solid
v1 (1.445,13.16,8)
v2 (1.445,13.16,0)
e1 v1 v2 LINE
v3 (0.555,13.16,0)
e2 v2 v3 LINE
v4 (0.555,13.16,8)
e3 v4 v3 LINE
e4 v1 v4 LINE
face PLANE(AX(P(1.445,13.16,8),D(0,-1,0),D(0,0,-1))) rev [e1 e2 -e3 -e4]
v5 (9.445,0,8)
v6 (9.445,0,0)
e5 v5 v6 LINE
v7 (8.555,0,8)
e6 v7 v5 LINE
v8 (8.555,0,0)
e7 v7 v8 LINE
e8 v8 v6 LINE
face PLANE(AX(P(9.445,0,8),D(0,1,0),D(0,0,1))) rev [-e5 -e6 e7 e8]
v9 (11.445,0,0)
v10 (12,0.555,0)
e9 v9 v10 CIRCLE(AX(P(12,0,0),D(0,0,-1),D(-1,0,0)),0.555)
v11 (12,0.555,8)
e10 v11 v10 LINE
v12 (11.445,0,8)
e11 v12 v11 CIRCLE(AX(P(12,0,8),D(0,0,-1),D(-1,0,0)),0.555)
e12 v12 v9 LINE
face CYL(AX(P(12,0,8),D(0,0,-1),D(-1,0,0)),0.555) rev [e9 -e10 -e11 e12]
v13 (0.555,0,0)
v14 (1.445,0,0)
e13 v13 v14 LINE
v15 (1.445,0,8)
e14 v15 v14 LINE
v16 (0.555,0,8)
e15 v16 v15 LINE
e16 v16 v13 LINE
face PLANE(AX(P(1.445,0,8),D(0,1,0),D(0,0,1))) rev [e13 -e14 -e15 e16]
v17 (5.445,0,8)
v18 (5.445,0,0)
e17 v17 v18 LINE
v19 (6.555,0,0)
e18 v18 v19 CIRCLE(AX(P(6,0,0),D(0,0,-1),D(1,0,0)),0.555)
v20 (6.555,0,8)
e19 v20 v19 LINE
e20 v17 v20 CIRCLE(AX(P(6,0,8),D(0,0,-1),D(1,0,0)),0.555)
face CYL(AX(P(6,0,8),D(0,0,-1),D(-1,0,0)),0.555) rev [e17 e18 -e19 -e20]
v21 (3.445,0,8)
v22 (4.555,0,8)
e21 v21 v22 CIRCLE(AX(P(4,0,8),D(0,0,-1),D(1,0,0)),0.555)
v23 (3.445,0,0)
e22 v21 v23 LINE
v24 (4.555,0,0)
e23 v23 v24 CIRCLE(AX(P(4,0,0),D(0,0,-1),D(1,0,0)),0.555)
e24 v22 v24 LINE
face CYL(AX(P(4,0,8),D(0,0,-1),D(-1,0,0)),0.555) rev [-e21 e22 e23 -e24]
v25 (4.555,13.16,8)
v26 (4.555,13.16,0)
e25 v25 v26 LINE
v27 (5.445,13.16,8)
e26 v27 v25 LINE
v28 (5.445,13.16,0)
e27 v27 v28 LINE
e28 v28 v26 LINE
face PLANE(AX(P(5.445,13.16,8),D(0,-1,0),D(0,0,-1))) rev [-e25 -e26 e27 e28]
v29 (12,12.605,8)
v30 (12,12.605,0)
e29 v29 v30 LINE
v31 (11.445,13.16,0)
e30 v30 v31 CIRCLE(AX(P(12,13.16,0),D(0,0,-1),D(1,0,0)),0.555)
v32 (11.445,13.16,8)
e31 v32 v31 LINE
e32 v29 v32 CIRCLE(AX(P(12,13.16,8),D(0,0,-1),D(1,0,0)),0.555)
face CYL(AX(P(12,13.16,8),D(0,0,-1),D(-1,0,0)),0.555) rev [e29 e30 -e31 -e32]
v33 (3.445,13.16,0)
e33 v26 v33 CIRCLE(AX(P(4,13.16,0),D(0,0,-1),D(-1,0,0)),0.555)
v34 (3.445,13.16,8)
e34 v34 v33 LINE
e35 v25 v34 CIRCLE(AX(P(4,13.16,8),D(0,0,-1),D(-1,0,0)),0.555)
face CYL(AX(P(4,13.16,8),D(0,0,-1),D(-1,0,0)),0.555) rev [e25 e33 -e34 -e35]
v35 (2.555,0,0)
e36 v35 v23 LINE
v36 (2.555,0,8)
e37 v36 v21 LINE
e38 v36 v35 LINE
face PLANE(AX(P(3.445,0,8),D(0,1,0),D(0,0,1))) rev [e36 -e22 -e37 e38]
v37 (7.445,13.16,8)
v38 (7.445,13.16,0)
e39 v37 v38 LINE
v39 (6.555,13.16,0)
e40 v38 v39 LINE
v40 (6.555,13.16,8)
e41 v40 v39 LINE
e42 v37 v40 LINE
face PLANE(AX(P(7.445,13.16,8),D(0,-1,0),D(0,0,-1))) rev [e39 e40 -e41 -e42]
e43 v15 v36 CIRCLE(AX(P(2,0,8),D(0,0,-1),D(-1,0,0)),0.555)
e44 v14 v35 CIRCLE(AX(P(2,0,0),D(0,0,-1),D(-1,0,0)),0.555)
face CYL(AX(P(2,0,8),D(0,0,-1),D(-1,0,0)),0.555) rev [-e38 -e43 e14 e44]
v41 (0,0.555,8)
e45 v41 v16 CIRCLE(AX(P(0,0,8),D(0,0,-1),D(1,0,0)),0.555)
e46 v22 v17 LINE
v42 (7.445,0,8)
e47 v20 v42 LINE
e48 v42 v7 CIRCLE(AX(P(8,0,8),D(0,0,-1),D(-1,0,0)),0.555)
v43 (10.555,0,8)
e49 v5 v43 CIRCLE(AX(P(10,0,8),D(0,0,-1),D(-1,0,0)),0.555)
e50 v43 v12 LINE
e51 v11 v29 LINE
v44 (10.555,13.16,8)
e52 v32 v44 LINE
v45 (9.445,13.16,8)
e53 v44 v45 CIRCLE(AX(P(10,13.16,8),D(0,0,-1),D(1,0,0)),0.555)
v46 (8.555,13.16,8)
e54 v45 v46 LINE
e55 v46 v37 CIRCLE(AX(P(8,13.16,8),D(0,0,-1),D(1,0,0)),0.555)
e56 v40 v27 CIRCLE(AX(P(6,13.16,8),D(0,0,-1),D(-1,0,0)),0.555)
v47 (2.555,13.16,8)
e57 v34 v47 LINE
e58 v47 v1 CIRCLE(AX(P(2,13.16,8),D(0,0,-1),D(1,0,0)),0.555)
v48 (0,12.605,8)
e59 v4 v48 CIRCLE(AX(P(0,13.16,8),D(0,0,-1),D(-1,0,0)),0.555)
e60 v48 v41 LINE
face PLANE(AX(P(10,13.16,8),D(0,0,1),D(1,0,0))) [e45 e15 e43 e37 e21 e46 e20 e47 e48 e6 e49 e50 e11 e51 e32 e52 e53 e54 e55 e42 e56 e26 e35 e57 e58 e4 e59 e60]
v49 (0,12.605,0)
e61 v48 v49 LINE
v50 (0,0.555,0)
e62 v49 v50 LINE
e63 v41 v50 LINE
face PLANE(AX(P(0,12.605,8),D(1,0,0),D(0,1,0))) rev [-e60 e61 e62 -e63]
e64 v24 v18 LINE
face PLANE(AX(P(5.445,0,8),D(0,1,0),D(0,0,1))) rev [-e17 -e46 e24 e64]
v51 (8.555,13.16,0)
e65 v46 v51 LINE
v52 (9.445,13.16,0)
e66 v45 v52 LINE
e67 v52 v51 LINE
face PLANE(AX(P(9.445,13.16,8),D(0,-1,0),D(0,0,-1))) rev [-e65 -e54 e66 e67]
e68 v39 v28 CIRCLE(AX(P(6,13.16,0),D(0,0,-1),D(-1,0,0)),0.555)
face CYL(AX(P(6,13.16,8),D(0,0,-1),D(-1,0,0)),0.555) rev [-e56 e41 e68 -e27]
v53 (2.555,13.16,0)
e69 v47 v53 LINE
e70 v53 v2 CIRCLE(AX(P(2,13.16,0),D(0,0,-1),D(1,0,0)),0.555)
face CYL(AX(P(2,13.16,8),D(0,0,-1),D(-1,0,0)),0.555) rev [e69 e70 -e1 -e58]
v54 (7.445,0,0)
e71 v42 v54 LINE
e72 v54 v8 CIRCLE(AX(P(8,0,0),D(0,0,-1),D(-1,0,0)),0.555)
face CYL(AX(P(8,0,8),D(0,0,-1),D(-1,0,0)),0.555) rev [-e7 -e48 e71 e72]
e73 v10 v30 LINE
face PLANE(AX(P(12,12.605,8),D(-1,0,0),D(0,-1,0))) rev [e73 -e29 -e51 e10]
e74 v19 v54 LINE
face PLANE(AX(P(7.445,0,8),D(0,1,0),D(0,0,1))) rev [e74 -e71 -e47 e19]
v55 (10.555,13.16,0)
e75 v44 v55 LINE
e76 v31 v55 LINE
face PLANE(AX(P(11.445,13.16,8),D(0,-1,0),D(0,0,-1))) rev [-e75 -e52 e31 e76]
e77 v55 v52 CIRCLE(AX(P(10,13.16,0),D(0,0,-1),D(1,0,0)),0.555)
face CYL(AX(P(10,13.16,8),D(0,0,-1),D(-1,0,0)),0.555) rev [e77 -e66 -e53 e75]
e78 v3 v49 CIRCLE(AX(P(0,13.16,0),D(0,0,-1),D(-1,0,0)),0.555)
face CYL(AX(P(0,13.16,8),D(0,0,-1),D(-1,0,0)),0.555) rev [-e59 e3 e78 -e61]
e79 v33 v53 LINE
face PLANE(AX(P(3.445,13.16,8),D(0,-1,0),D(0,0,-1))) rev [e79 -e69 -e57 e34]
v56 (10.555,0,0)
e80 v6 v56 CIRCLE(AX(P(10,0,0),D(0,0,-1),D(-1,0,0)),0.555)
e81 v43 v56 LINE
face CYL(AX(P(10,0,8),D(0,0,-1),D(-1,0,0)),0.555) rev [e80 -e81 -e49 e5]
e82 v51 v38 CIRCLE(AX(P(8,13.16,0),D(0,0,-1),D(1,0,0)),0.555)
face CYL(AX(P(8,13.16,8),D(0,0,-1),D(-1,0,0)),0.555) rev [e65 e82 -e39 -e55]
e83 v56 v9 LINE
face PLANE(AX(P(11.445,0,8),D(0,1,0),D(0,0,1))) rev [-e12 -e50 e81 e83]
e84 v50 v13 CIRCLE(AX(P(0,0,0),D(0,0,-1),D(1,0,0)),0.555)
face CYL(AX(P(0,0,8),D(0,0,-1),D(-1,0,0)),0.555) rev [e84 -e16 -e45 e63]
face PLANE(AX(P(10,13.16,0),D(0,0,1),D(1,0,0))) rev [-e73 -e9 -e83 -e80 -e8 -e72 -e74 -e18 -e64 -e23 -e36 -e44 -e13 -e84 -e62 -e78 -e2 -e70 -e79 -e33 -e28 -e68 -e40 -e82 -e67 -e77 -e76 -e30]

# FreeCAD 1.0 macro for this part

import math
import FreeCAD as App
import Part
import Sketcher

doc = App.newDocument("Part")
body = doc.addObject("PartDesign::Body", "Body")

# Sketch on XY plane
sketch1 = body.newObject("Sketcher::SketchObject", "Sketch")
sketch1.AttachmentSupport = (doc.getObject("XY_Plane"), [""])
sketch1.MapMode = "FlatFace"
sketch1.addGeometry(Part.LineSegment(App.Vector(11.445, 13.16, 0), App.Vector(10.555, 13.16, 0)), False)
sketch1.addGeometry(Part.ArcOfCircle(Part.Circle(App.Vector(10, 13.16, 0), App.Vector(0, 0, 1), 0.555), math.radians(180), math.radians(360)), False)
sketch1.addGeometry(Part.LineSegment(App.Vector(9.445, 13.16, 0), App.Vector(8.555, 13.16, 0)), False)
sketch1.addGeometry(Part.ArcOfCircle(Part.Circle(App.Vector(8, 13.16, 0), App.Vector(0, 0, 1), 0.555), math.radians(180), math.radians(360)), False)
sketch1.addGeometry(Part.LineSegment(App.Vector(7.445, 13.16, 0), App.Vector(6.555, 13.16, 0)), False)
sketch1.addGeometry(Part.ArcOfCircle(Part.Circle(App.Vector(6, 13.16, 0), App.Vector(0, 0, 1), 0.555), math.radians(180), math.radians(360)), False)
sketch1.addGeometry(Part.LineSegment(App.Vector(5.445, 13.16, 0), App.Vector(4.555, 13.16, 0)), False)
sketch1.addGeometry(Part.ArcOfCircle(Part.Circle(App.Vector(4, 13.16, 0), App.Vector(0, 0, 1), 0.555), math.radians(180), math.radians(360)), False)
sketch1.addGeometry(Part.LineSegment(App.Vector(3.445, 13.16, 0), App.Vector(2.555, 13.16, 0)), False)
sketch1.addGeometry(Part.ArcOfCircle(Part.Circle(App.Vector(2, 13.16, 0), App.Vector(0, 0, 1), 0.555), math.radians(180), math.radians(360)), False)
sketch1.addGeometry(Part.LineSegment(App.Vector(1.445, 13.16, 0), App.Vector(0.555, 13.16, 0)), False)
sketch1.addGeometry(Part.ArcOfCircle(Part.Circle(App.Vector(0, 13.16, 0), App.Vector(0, 0, 1), 0.555), math.radians(-90), math.radians(0)), False)
sketch1.addGeometry(Part.LineSegment(App.Vector(0, 12.605, 0), App.Vector(0, 0.555, 0)), False)
sketch1.addGeometry(Part.ArcOfCircle(Part.Circle(App.Vector(0, 0, 0), App.Vector(0, 0, 1), 0.555), math.radians(0), math.radians(90)), False)
sketch1.addGeometry(Part.LineSegment(App.Vector(0.555, 0, 0), App.Vector(1.445, 0, 0)), False)
sketch1.addGeometry(Part.ArcOfCircle(Part.Circle(App.Vector(2, 0, 0), App.Vector(0, 0, 1), 0.555), math.radians(0), math.radians(180)), False)
sketch1.addGeometry(Part.LineSegment(App.Vector(2.555, 0, 0), App.Vector(3.445, 0, 0)), False)
sketch1.addGeometry(Part.ArcOfCircle(Part.Circle(App.Vector(4, 0, 0), App.Vector(0, 0, 1), 0.555), math.radians(0), math.radians(180)), False)
sketch1.addGeometry(Part.LineSegment(App.Vector(4.555, 0, 0), App.Vector(5.445, 0, 0)), False)
sketch1.addGeometry(Part.ArcOfCircle(Part.Circle(App.Vector(6, 0, 0), App.Vector(0, 0, 1), 0.555), math.radians(0), math.radians(180)), False)
sketch1.addGeometry(Part.LineSegment(App.Vector(6.555, 0, 0), App.Vector(7.445, 0, 0)), False)
sketch1.addGeometry(Part.ArcOfCircle(Part.Circle(App.Vector(8, 0, 0), App.Vector(0, 0, 1), 0.555), math.radians(0), math.radians(180)), False)
sketch1.addGeometry(Part.LineSegment(App.Vector(8.555, 0, 0), App.Vector(9.445, 0, 0)), False)
sketch1.addGeometry(Part.ArcOfCircle(Part.Circle(App.Vector(10, 0, 0), App.Vector(0, 0, 1), 0.555), math.radians(0), math.radians(180)), False)
sketch1.addGeometry(Part.LineSegment(App.Vector(10.555, 0, 0), App.Vector(11.445, 0, 0)), False)
sketch1.addGeometry(Part.ArcOfCircle(Part.Circle(App.Vector(12, 0, 0), App.Vector(0, 0, 1), 0.555), math.radians(90), math.radians(180)), False)
sketch1.addGeometry(Part.LineSegment(App.Vector(12, 0.555, 0), App.Vector(12, 12.605, 0)), False)
sketch1.addGeometry(Part.ArcOfCircle(Part.Circle(App.Vector(12, 13.16, 0), App.Vector(0, 0, 1), 0.555), math.radians(180), math.radians(270)), False)
sketch1.addConstraint(Sketcher.Constraint("Coincident", 0, 2, 1, 2))
sketch1.addConstraint(Sketcher.Constraint("Coincident", 1, 1, 2, 1))
sketch1.addConstraint(Sketcher.Constraint("Coincident", 2, 2, 3, 2))
sketch1.addConstraint(Sketcher.Constraint("Coincident", 3, 1, 4, 1))
sketch1.addConstraint(Sketcher.Constraint("Coincident", 4, 2, 5, 2))
sketch1.addConstraint(Sketcher.Constraint("Coincident", 5, 1, 6, 1))
sketch1.addConstraint(Sketcher.Constraint("Coincident", 6, 2, 7, 2))
sketch1.addConstraint(Sketcher.Constraint("Coincident", 7, 1, 8, 1))
sketch1.addConstraint(Sketcher.Constraint("Coincident", 8, 2, 9, 2))
sketch1.addConstraint(Sketcher.Constraint("Coincident", 9, 1, 10, 1))
sketch1.addConstraint(Sketcher.Constraint("Coincident", 10, 2, 11, 2))
sketch1.addConstraint(Sketcher.Constraint("Coincident", 11, 1, 12, 1))
sketch1.addConstraint(Sketcher.Constraint("Coincident", 12, 2, 13, 2))
sketch1.addConstraint(Sketcher.Constraint("Coincident", 13, 1, 14, 1))
sketch1.addConstraint(Sketcher.Constraint("Coincident", 14, 2, 15, 2))
sketch1.addConstraint(Sketcher.Constraint("Coincident", 15, 1, 16, 1))
sketch1.addConstraint(Sketcher.Constraint("Coincident", 16, 2, 17, 2))
sketch1.addConstraint(Sketcher.Constraint("Coincident", 17, 1, 18, 1))
sketch1.addConstraint(Sketcher.Constraint("Coincident", 18, 2, 19, 2))
sketch1.addConstraint(Sketcher.Constraint("Coincident", 19, 1, 20, 1))
sketch1.addConstraint(Sketcher.Constraint("Coincident", 20, 2, 21, 2))
sketch1.addConstraint(Sketcher.Constraint("Coincident", 21, 1, 22, 1))
sketch1.addConstraint(Sketcher.Constraint("Coincident", 22, 2, 23, 2))
sketch1.addConstraint(Sketcher.Constraint("Coincident", 23, 1, 24, 1))
sketch1.addConstraint(Sketcher.Constraint("Coincident", 24, 2, 25, 2))
sketch1.addConstraint(Sketcher.Constraint("Coincident", 25, 1, 26, 1))
sketch1.addConstraint(Sketcher.Constraint("Coincident", 26, 2, 27, 2))
sketch1.addConstraint(Sketcher.Constraint("Coincident", 27, 1, 0, 1))
sketch1.addConstraint(Sketcher.Constraint("Horizontal", 0))
sketch1.addConstraint(Sketcher.Constraint("Horizontal", 2))
sketch1.addConstraint(Sketcher.Constraint("Horizontal", 4))
sketch1.addConstraint(Sketcher.Constraint("Horizontal", 6))
sketch1.addConstraint(Sketcher.Constraint("Horizontal", 8))
sketch1.addConstraint(Sketcher.Constraint("Horizontal", 10))
sketch1.addConstraint(Sketcher.Constraint("Vertical", 12))
sketch1.addConstraint(Sketcher.Constraint("Horizontal", 14))
sketch1.addConstraint(Sketcher.Constraint("Horizontal", 16))
sketch1.addConstraint(Sketcher.Constraint("Horizontal", 18))
sketch1.addConstraint(Sketcher.Constraint("Horizontal", 20))
sketch1.addConstraint(Sketcher.Constraint("Horizontal", 22))
sketch1.addConstraint(Sketcher.Constraint("Horizontal", 24))
sketch1.addConstraint(Sketcher.Constraint("Vertical", 26))
sketch1.addConstraint(Sketcher.Constraint("Coincident", 13, 3, -1, 1))
sketch1.addConstraint(Sketcher.Constraint("Equal", 1, 3))
sketch1.addConstraint(Sketcher.Constraint("Equal", 3, 5))
sketch1.addConstraint(Sketcher.Constraint("Equal", 5, 7))
sketch1.addConstraint(Sketcher.Constraint("Equal", 7, 9))
sketch1.addConstraint(Sketcher.Constraint("Equal", 9, 11))
sketch1.addConstraint(Sketcher.Constraint("Equal", 11, 13))
sketch1.addConstraint(Sketcher.Constraint("Equal", 13, 15))
sketch1.addConstraint(Sketcher.Constraint("Equal", 15, 17))
sketch1.addConstraint(Sketcher.Constraint("Equal", 17, 19))
sketch1.addConstraint(Sketcher.Constraint("Equal", 19, 21))
sketch1.addConstraint(Sketcher.Constraint("Equal", 21, 23))
sketch1.addConstraint(Sketcher.Constraint("Equal", 23, 25))
sketch1.addConstraint(Sketcher.Constraint("Equal", 25, 27))
sketch1.addConstraint(Sketcher.Constraint("PointOnObject", 11, 3, -2))
sketch1.addConstraint(Sketcher.Constraint("PointOnObject", 15, 3, -1))
sketch1.addConstraint(Sketcher.Constraint("PointOnObject", 17, 3, -1))
sketch1.addConstraint(Sketcher.Constraint("PointOnObject", 19, 3, -1))
sketch1.addConstraint(Sketcher.Constraint("PointOnObject", 21, 3, -1))
sketch1.addConstraint(Sketcher.Constraint("PointOnObject", 23, 3, -1))
sketch1.addConstraint(Sketcher.Constraint("PointOnObject", 25, 3, -1))
sketch1.addConstraint(Sketcher.Constraint("PointOnObject", 11, 1, -2))
sketch1.addConstraint(Sketcher.Constraint("PointOnObject", 13, 1, -1))
sketch1.addConstraint(Sketcher.Constraint("PointOnObject", 15, 1, -1))
sketch1.addConstraint(Sketcher.Constraint("PointOnObject", 17, 1, -1))
sketch1.addConstraint(Sketcher.Constraint("PointOnObject", 19, 1, -1))
sketch1.addConstraint(Sketcher.Constraint("PointOnObject", 21, 1, -1))
sketch1.addConstraint(Sketcher.Constraint("PointOnObject", 23, 1, -1))
sketch1.addConstraint(Sketcher.Constraint("Horizontal", 1, 3, 3, 3))
sketch1.addConstraint(Sketcher.Constraint("Horizontal", 3, 3, 5, 3))
sketch1.addConstraint(Sketcher.Constraint("Horizontal", 5, 3, 7, 3))
sketch1.addConstraint(Sketcher.Constraint("Horizontal", 7, 3, 9, 3))
sketch1.addConstraint(Sketcher.Constraint("Horizontal", 9, 3, 11, 3))
sketch1.addConstraint(Sketcher.Constraint("Horizontal", 11, 3, 27, 3))
sketch1.addConstraint(Sketcher.Constraint("Horizontal", 27, 3, 0, 2))
sketch1.addConstraint(Sketcher.Constraint("Horizontal", 0, 2, 1, 1))
sketch1.addConstraint(Sketcher.Constraint("Horizontal", 2, 2, 3, 1))
sketch1.addConstraint(Sketcher.Constraint("Horizontal", 4, 2, 5, 1))
sketch1.addConstraint(Sketcher.Constraint("Horizontal", 6, 2, 7, 1))
sketch1.addConstraint(Sketcher.Constraint("Horizontal", 8, 2, 9, 1))
sketch1.addConstraint(Sketcher.Constraint("Vertical", 9, 3, 15, 3))
sketch1.addConstraint(Sketcher.Constraint("Vertical", 7, 3, 17, 3))
sketch1.addConstraint(Sketcher.Constraint("Vertical", 5, 3, 19, 3))
sketch1.addConstraint(Sketcher.Constraint("Vertical", 3, 3, 21, 3))
sketch1.addConstraint(Sketcher.Constraint("Vertical", 1, 3, 23, 3))
sketch1.addConstraint(Sketcher.Constraint("Vertical", 25, 3, 27, 3))
sketch1.addConstraint(Sketcher.Constraint("Vertical", 27, 3, 25, 1))
sketch1.addConstraint(Sketcher.Constraint("Equal", 0, 2))
sketch1.addConstraint(Sketcher.Constraint("Equal", 2, 4))
sketch1.addConstraint(Sketcher.Constraint("Equal", 4, 6))
sketch1.addConstraint(Sketcher.Constraint("Equal", 6, 8))
sketch1.addConstraint(Sketcher.Constraint("Equal", 8, 10))
sketch1.addConstraint(Sketcher.Constraint("DistanceX", -1, 1, 1, 3, 10.0))
sketch1.addConstraint(Sketcher.Constraint("Radius", 1, 0.555))
sketch1.addConstraint(Sketcher.Constraint("DistanceY", 12, 2, 12, 1, 12.05))
pad1 = body.newObject("PartDesign::Pad", "Pad")
pad1.Profile = sketch1
pad1.Length = 8

doc.recompute()
